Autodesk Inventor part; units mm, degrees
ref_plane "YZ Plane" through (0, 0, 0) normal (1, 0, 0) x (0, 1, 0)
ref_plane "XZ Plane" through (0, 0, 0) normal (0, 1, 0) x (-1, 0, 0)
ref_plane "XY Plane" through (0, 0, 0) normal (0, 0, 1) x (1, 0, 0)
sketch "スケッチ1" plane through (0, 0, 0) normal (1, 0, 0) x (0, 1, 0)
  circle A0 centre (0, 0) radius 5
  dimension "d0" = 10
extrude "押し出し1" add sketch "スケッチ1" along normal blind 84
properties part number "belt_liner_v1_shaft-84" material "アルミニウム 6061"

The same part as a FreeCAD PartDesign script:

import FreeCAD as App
import Part
import Sketcher

V = App.Vector

doc = App.newDocument("Part")
params = doc.addObject("Spreadsheet::Sheet", "Params")
for row, (alias, value) in enumerate([
    ("sketch1_diameter", "10 mm"),
    ("pad1_length", "84 mm"),
], start=1):
    params.set(f"A{row}", alias)
    params.set(f"B{row}", "=" + value)
    params.setAlias(f"B{row}", alias)

body = doc.addObject("PartDesign::Body", "Body")

# Sketch on YZ plane
sketch1 = body.newObject("Sketcher::SketchObject", "Sketch")
sketch1.AttachmentSupport = (doc.getObject("YZ_Plane"), [""])
sketch1.MapMode = "FlatFace"
sketch1.addGeometry(Part.Circle(V(0, 0, 0), V(0, 0, 1), 5), False)
sketch1.addConstraint(Sketcher.Constraint("Coincident", 0, 3, -1, 1))
sketch1.addConstraint(Sketcher.Constraint("Diameter", 0, 10.0))
sketch1.setExpression("Constraints[1]", "Params.sketch1_diameter")
pad1 = body.newObject("PartDesign::Pad", "Pad")
pad1.Profile = sketch1
pad1.setExpression("Length", "Params.pad1_length")

doc.recompute()
